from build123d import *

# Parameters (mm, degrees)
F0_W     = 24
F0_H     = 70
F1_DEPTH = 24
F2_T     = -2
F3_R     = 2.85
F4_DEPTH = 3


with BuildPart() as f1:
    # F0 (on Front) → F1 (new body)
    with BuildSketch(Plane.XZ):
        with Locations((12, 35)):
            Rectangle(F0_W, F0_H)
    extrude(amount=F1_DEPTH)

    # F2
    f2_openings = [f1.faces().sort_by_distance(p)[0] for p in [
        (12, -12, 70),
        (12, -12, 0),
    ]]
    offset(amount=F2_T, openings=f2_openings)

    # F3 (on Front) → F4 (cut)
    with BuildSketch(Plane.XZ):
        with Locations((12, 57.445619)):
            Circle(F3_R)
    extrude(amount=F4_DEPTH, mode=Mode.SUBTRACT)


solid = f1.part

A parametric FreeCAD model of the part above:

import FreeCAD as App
import Part
import Sketcher
from FreeCAD import Vector
Q = App.Units.Quantity


def faces_at(feature, points):
    """Names of the faces that lie closest to the given points."""
    faces = feature.Shape.Faces
    near = lambda p: min(range(len(faces)), key=lambda i: faces[i].distToShape(Part.Vertex(*p))[0])
    return sorted({f"Face{near(p) + 1}" for p in points})

doc = App.newDocument("Part")
body = doc.addObject("PartDesign::Body", "Body")

# Sketch on XZ plane
sketch1 = doc.addObject("Sketcher::SketchObject", "Sketch")
body.addObject(sketch1)
sketch1.AttachmentSupport = (doc.XZ_Plane, [""])
sketch1.MapMode = "FlatFace"
sketch1.addGeometry(Part.LineSegment(Vector(0, 70, 0), Vector(0, 0, 0)), False)
sketch1.addGeometry(Part.LineSegment(Vector(0, 0, 0), Vector(24, 0, 0)), False)
sketch1.addGeometry(Part.LineSegment(Vector(24, 0, 0), Vector(24, 70, 0)), False)
sketch1.addGeometry(Part.LineSegment(Vector(24, 70, 0), Vector(0, 70, 0)), False)
sketch1.addConstraint(Sketcher.Constraint("Coincident", 0, 2, 1, 1))
sketch1.addConstraint(Sketcher.Constraint("Coincident", 1, 2, 2, 1))
sketch1.addConstraint(Sketcher.Constraint("Coincident", 2, 2, 3, 1))
sketch1.addConstraint(Sketcher.Constraint("Coincident", 3, 2, 0, 1))
sketch1.addConstraint(Sketcher.Constraint("Vertical", 0))
sketch1.addConstraint(Sketcher.Constraint("Horizontal", 1))
sketch1.addConstraint(Sketcher.Constraint("Vertical", 2))
sketch1.addConstraint(Sketcher.Constraint("Horizontal", 3))
sketch1.addConstraint(Sketcher.Constraint("Coincident", 0, 2, -1, 1))
sketch1.addConstraint(Sketcher.Constraint("DistanceX", 1, 1, 1, 2, Q("24 mm")))
sketch1.addConstraint(Sketcher.Constraint("DistanceY", 0, 2, 0, 1, Q("70 mm")))
pad1 = doc.addObject("PartDesign::Pad", "Pad")
body.addObject(pad1)
pad1.Profile = sketch1
pad1.Length = 24
doc.recompute()

thickness = doc.addObject("PartDesign::Thickness", "Thickness")
body.addObject(thickness)
thickness.Base = (pad1, faces_at(pad1, [(12, -12, 70), (12, -12, 0)]))
thickness.Value = 2
thickness.Reversed = True
thickness.Join = "Arc"

# Sketch on XZ plane
sketch2 = doc.addObject("Sketcher::SketchObject", "Sketch001")
body.addObject(sketch2)
sketch2.AttachmentSupport = (doc.XZ_Plane, [""])
sketch2.MapMode = "FlatFace"
sketch2.addGeometry(Part.Circle(Vector(12, 57.4, 0), Vector(0, 0, 1), 2.9), False)
sketch2.addConstraint(Sketcher.Constraint("Diameter", 0, Q("5.7 mm")))
sketch2.addConstraint(Sketcher.Constraint("DistanceX", -1, 1, 0, 3, Q("12 mm")))
sketch2.addConstraint(Sketcher.Constraint("DistanceY", -1, 1, 0, 3, Q("57.445619 mm")))
pocket1 = doc.addObject("PartDesign::Pocket", "Pocket")
body.addObject(pocket1)
pocket1.Profile = sketch2
pocket1.Length = 3
pocket1.Reversed = True

doc.recompute()
